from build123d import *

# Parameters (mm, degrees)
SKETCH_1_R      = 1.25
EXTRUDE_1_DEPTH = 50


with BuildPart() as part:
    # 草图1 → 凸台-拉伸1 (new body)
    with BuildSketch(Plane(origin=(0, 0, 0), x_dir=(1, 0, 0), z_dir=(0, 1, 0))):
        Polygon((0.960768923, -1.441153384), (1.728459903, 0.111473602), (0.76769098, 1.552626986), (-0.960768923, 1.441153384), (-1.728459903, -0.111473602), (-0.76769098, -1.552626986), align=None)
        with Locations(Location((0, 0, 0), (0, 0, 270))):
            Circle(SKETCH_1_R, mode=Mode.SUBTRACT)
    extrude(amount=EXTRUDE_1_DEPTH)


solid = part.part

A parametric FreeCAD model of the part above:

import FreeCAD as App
import Part
import Sketcher
from FreeCAD import Vector
Q = App.Units.Quantity

doc = App.newDocument("Part")
body = doc.addObject("PartDesign::Body", "Body")

sketch1 = body.newObject("Sketcher::SketchObject", "Sketch")
sketch1.AttachmentSupport = (doc.getObject("XZ_Plane"), [""])
sketch1.MapMode = "FlatFace"
sketch1.addGeometry([
    Part.LineSegment(Vector(0.960769, 1.441153, 0), Vector(1.72846, -0.111474, 0)),
    Part.LineSegment(Vector(1.72846, -0.111474, 0), Vector(0.767691, -1.552627, 0)),
    Part.LineSegment(Vector(0.767691, -1.552627, 0), Vector(-0.960769, -1.441153, 0)),
    Part.LineSegment(Vector(-0.960769, -1.441153, 0), Vector(-1.72846, 0.111474, 0)),
    Part.LineSegment(Vector(-1.72846, 0.111474, 0), Vector(-0.767691, 1.552627, 0)),
    Part.LineSegment(Vector(-0.767691, 1.552627, 0), Vector(0.960769, 1.441153, 0)),
    Part.Circle(Vector(0, 0, 0), Vector(0, 0, 1), 1.25),
], False)
sketch1.addConstraint([
    Sketcher.Constraint("Coincident", 0, 2, 1, 1),
    Sketcher.Constraint("Coincident", 1, 2, 2, 1),
    Sketcher.Constraint("Coincident", 2, 2, 3, 1),
    Sketcher.Constraint("Coincident", 3, 2, 4, 1),
    Sketcher.Constraint("Coincident", 4, 2, 5, 1),
    Sketcher.Constraint("Coincident", 5, 2, 0, 1),
    Sketcher.Constraint("Coincident", 6, 3, -1, 1),
    Sketcher.Constraint("Symmetric", 0, 2, 3, 2, -1, 1),
    Sketcher.Constraint("Symmetric", 1, 2, 4, 2, -1, 1),
    Sketcher.Constraint("Symmetric", 2, 2, 5, 2, -1, 1),
    Sketcher.Constraint("Equal", 0, 1),
    Sketcher.Constraint("Equal", 1, 2),
    Sketcher.Constraint("Diameter", 6, Q("2.5 mm")),
    Sketcher.Constraint("DistanceY", 1, 2, 3, 2, Q("1.664101 mm")),
    Sketcher.Constraint("Distance", 0, Q("1.732051 mm")),
    Sketcher.Constraint("DistanceX", -1, 1, 0, 2, Q("1.72846 mm")),
    Sketcher.Constraint("DistanceX", -1, 1, 1, 2, Q("0.767691 mm")),
])
pad1 = body.newObject("PartDesign::Pad", "Pad")
pad1.Profile = sketch1
pad1.Length = 50
pad1.Reversed = True

doc.recompute()
